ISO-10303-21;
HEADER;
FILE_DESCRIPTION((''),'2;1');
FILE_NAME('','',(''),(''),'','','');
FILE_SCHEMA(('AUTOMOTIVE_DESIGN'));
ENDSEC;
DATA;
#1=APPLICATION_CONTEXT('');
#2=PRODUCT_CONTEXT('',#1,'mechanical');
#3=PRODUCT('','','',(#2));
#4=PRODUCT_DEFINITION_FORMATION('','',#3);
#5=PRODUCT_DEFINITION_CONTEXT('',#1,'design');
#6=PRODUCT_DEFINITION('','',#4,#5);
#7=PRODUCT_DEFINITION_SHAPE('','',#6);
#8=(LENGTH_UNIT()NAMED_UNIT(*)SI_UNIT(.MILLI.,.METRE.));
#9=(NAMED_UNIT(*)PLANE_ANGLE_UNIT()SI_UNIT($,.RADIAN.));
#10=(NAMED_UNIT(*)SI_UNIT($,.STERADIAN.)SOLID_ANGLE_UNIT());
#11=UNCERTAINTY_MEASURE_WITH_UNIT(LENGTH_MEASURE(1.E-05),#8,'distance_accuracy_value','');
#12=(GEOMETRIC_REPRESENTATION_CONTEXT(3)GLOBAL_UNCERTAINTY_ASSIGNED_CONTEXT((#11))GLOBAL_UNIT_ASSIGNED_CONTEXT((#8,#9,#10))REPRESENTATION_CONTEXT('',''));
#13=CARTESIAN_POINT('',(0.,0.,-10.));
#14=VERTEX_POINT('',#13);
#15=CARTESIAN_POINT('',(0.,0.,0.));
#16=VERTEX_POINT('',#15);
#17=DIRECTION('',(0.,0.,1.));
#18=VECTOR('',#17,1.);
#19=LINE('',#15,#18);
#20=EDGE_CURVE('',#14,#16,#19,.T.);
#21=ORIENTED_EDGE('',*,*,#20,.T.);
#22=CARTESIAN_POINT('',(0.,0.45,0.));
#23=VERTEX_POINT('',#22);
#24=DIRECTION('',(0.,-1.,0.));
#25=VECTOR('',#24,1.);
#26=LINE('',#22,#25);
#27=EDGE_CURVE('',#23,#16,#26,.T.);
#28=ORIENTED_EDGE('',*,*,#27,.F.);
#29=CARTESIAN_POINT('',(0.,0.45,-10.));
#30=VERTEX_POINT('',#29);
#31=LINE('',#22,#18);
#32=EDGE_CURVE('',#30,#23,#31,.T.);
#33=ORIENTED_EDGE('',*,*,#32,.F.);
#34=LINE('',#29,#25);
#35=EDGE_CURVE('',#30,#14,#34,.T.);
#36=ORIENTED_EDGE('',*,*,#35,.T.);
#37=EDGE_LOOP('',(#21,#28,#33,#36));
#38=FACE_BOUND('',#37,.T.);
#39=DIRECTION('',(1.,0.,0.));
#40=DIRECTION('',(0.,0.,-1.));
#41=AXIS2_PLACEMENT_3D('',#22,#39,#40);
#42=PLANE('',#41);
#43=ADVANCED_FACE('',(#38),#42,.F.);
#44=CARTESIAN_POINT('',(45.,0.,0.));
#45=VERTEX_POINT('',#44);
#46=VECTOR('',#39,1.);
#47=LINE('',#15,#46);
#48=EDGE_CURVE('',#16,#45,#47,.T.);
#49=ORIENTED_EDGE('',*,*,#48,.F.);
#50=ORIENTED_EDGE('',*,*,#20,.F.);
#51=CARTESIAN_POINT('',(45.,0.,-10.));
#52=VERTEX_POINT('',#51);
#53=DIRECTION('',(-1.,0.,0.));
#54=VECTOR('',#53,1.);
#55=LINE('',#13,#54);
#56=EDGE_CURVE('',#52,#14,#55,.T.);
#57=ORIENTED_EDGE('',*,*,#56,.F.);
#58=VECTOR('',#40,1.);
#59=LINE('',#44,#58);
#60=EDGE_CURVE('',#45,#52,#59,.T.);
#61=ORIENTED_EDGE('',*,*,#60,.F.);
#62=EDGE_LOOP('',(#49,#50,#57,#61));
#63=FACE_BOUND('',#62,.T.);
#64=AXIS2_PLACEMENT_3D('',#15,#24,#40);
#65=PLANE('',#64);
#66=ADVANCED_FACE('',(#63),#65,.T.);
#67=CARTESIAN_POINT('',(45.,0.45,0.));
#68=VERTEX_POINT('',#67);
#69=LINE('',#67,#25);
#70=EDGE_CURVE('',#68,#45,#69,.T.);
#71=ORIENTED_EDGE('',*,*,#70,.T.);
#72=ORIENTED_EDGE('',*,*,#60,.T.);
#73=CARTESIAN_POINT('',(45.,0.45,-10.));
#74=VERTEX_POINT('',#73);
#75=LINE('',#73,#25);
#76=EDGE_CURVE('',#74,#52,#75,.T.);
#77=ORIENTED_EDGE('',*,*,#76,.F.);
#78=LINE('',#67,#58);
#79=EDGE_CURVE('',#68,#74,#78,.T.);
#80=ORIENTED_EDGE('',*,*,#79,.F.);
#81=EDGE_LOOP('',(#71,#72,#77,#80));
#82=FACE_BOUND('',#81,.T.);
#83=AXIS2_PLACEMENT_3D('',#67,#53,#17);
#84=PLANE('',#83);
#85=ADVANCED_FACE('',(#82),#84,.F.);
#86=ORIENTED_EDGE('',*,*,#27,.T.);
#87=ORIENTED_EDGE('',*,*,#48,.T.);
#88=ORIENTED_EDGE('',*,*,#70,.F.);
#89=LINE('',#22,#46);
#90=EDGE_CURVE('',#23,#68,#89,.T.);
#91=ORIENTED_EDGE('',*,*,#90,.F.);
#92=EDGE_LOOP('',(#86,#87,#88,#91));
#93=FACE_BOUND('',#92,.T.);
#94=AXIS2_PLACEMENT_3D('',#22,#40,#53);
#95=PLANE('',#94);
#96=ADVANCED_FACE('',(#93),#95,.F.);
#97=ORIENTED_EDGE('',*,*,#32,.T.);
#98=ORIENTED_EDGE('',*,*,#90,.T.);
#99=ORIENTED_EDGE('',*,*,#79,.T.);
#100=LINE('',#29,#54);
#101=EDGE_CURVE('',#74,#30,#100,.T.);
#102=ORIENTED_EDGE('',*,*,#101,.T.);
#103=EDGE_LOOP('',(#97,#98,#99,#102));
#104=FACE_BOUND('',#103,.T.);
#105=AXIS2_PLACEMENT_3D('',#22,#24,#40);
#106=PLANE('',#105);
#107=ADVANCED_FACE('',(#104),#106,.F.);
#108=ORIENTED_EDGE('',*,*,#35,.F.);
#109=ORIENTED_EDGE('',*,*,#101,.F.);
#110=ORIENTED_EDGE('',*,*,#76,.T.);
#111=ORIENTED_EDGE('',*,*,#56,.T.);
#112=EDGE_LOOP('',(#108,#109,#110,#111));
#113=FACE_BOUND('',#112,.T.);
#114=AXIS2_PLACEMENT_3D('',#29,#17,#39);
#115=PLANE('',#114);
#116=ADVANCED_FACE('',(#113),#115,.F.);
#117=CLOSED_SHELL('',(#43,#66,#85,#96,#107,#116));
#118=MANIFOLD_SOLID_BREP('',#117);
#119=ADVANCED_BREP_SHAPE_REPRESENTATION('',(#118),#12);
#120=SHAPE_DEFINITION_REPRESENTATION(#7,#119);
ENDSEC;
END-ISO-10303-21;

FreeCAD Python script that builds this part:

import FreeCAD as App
import Part
import Sketcher

V = App.Vector
Q = App.Units.Quantity


def add_polygon(sketch, points):
    """Adds a closed chain of lines whose ends are joined by coincident constraints."""
    first, n = sketch.GeometryCount, len(points)
    for a, b in zip(points, points[1:] + points[:1]):
        sketch.addGeometry(Part.LineSegment(App.Vector(*a, 0), App.Vector(*b, 0)), False)
    for i in range(n):
        sketch.addConstraint(Sketcher.Constraint("Coincident", first + i, 2, first + (i + 1) % n, 1))

doc = App.newDocument("Part")
params = doc.addObject("Spreadsheet::Sheet", "Params")
for row, (alias, value) in enumerate([
    ("sketch1_width", "45 mm"),
    ("sketch1_height", "10 mm"),
    ("pad1_length", "0.45 mm"),
], start=1):
    params.set(f"A{row}", alias)
    params.set(f"B{row}", "=" + value)
    params.setAlias(f"B{row}", alias)

body = doc.addObject("PartDesign::Body", "Body")

sketch1 = body.newObject("Sketcher::SketchObject", "Sketch")
sketch1.AttachmentSupport = (doc.getObject("XZ_Plane"), [""])
sketch1.MapMode = "FlatFace"
add_polygon(sketch1, [(0, -10), (0, 0), (45, 0), (45, -10)])
sketch1.addConstraint([
    Sketcher.Constraint("Vertical", 0),
    Sketcher.Constraint("Horizontal", 1),
    Sketcher.Constraint("Vertical", 2),
    Sketcher.Constraint("Horizontal", 3),
    Sketcher.Constraint("Coincident", 0, 2, -1, 1),
    Sketcher.Constraint("DistanceX", 1, 1, 1, 2, Q("45 mm")),
    Sketcher.Constraint("DistanceY", 0, 1, 0, 2, Q("10 mm")),
])
sketch1.setExpression("Constraints[9]", "Params.sketch1_width")
sketch1.setExpression("Constraints[10]", "Params.sketch1_height")
pad1 = body.newObject("PartDesign::Pad", "Pad")
pad1.Profile = sketch1
pad1.setExpression("Length", "Params.pad1_length")
pad1.Reversed = True

doc.recompute()
